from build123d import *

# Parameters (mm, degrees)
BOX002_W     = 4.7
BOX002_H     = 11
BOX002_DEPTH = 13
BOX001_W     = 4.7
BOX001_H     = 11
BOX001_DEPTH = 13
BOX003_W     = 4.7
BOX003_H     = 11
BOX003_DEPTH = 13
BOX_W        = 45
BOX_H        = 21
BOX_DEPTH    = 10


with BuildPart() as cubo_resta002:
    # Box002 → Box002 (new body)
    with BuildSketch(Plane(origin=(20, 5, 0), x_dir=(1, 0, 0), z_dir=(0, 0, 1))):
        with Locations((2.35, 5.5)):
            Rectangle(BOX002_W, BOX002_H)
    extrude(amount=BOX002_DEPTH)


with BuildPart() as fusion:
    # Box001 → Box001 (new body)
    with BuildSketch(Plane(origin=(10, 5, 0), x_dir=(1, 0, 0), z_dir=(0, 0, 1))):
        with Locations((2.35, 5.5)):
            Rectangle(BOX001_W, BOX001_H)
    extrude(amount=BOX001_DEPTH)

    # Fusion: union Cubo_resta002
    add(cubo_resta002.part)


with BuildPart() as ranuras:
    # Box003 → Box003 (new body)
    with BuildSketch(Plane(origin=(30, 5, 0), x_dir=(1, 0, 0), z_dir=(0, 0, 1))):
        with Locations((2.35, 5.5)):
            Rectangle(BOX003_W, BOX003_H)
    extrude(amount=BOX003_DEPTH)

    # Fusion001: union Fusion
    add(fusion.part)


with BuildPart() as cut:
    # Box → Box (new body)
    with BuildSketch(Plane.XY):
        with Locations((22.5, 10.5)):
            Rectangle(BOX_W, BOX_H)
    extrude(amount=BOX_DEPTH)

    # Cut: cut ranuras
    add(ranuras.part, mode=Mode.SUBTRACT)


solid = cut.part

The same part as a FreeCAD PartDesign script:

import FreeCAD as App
import Part
import Sketcher

V = App.Vector
Q = App.Units.Quantity


def add_polygon(sketch, points):
    """Adds a closed chain of lines whose ends are joined by coincident constraints."""
    first, n = sketch.GeometryCount, len(points)
    for a, b in zip(points, points[1:] + points[:1]):
        sketch.addGeometry(Part.LineSegment(App.Vector(*a, 0), App.Vector(*b, 0)), False)
    for i in range(n):
        sketch.addConstraint(Sketcher.Constraint("Coincident", first + i, 2, first + (i + 1) % n, 1))

doc = App.newDocument("Part")
body = doc.addObject("PartDesign::Body", "Body")

# Sketch on XY plane
sketch1 = body.newObject("Sketcher::SketchObject", "Sketch")
sketch1.AttachmentSupport = (doc.getObject("XY_Plane"), [""])
sketch1.MapMode = "FlatFace"
add_polygon(sketch1, [(20, 16), (20, 5), (24.7, 5), (24.7, 16)])  # lines 0-3
sketch1.addConstraint([
    Sketcher.Constraint("Vertical", 0),
    Sketcher.Constraint("Horizontal", 1),
    Sketcher.Constraint("Vertical", 2),
    Sketcher.Constraint("Horizontal", 3),
    Sketcher.Constraint("DistanceY", 0, 2, 0, 1, Q("11 mm")),
    Sketcher.Constraint("DistanceX", 1, 1, 1, 2, Q("4.7 mm")),
    Sketcher.Constraint("DistanceX", -1, 1, 0, 2, Q("20 mm")),
    Sketcher.Constraint("DistanceY", -1, 1, 0, 2, Q("5 mm")),
])
pad1 = body.newObject("PartDesign::Pad", "Pad")
pad1.Profile = sketch1
pad1.Length = 13
body2 = doc.addObject("PartDesign::Body", "Body001")
body2.AllowCompound = True

# Sketch on XY plane
sketch2 = body2.newObject("Sketcher::SketchObject", "Sketch001")
sketch2.AttachmentSupport = (doc.getObject("XY_Plane001"), [""])
sketch2.MapMode = "FlatFace"
add_polygon(sketch2, [(10, 16), (10, 5), (14.7, 5), (14.7, 16)])  # lines 0-3
sketch2.addConstraint([
    Sketcher.Constraint("Vertical", 0),
    Sketcher.Constraint("Horizontal", 1),
    Sketcher.Constraint("Vertical", 2),
    Sketcher.Constraint("Horizontal", 3),
    Sketcher.Constraint("DistanceY", 0, 2, 0, 1, Q("11 mm")),
    Sketcher.Constraint("DistanceX", 1, 1, 1, 2, Q("4.7 mm")),
    Sketcher.Constraint("DistanceX", -1, 1, 0, 2, Q("10 mm")),
    Sketcher.Constraint("DistanceY", -1, 1, 0, 2, Q("5 mm")),
])
pad2 = body2.newObject("PartDesign::Pad", "Pad001")
pad2.Profile = sketch2
pad2.Length = 13
doc.recompute()

boolean = body2.newObject("PartDesign::Boolean", "Boolean")
boolean.Type = "Fuse"
boolean.addObjects([body])
body3 = doc.addObject("PartDesign::Body", "Body002")
body3.AllowCompound = True

# Sketch on XY plane
sketch3 = body3.newObject("Sketcher::SketchObject", "Sketch002")
sketch3.AttachmentSupport = (doc.getObject("XY_Plane002"), [""])
sketch3.MapMode = "FlatFace"
add_polygon(sketch3, [(30, 16), (30, 5), (34.7, 5), (34.7, 16)])  # lines 0-3
sketch3.addConstraint([
    Sketcher.Constraint("Vertical", 0),
    Sketcher.Constraint("Horizontal", 1),
    Sketcher.Constraint("Vertical", 2),
    Sketcher.Constraint("Horizontal", 3),
    Sketcher.Constraint("DistanceY", 0, 2, 0, 1, Q("11 mm")),
    Sketcher.Constraint("DistanceX", 1, 1, 1, 2, Q("4.7 mm")),
    Sketcher.Constraint("DistanceX", -1, 1, 0, 2, Q("30 mm")),
    Sketcher.Constraint("DistanceY", -1, 1, 0, 2, Q("5 mm")),
])
pad3 = body3.newObject("PartDesign::Pad", "Pad002")
pad3.Profile = sketch3
pad3.Length = 13
doc.recompute()

boolean2 = body3.newObject("PartDesign::Boolean", "Boolean001")
boolean2.Type = "Fuse"
boolean2.addObjects([body2])
body4 = doc.addObject("PartDesign::Body", "Body003")

# Sketch on XY plane
sketch4 = body4.newObject("Sketcher::SketchObject", "Sketch003")
sketch4.AttachmentSupport = (doc.getObject("XY_Plane003"), [""])
sketch4.MapMode = "FlatFace"
add_polygon(sketch4, [(0, 21), (0, 0), (45, 0), (45, 21)])  # lines 0-3
sketch4.addConstraint([
    Sketcher.Constraint("Vertical", 0),
    Sketcher.Constraint("Horizontal", 1),
    Sketcher.Constraint("Vertical", 2),
    Sketcher.Constraint("Horizontal", 3),
    Sketcher.Constraint("Coincident", 0, 2, -1, 1),
    Sketcher.Constraint("DistanceX", 1, 1, 1, 2, Q("45 mm")),
    Sketcher.Constraint("DistanceY", 0, 2, 0, 1, Q("21 mm")),
])
pad4 = body4.newObject("PartDesign::Pad", "Pad003")
pad4.Profile = sketch4
pad4.Length = 10
doc.recompute()

boolean3 = body4.newObject("PartDesign::Boolean", "Boolean002")
boolean3.Type = "Cut"
boolean3.addObjects([body3])

doc.recompute()
